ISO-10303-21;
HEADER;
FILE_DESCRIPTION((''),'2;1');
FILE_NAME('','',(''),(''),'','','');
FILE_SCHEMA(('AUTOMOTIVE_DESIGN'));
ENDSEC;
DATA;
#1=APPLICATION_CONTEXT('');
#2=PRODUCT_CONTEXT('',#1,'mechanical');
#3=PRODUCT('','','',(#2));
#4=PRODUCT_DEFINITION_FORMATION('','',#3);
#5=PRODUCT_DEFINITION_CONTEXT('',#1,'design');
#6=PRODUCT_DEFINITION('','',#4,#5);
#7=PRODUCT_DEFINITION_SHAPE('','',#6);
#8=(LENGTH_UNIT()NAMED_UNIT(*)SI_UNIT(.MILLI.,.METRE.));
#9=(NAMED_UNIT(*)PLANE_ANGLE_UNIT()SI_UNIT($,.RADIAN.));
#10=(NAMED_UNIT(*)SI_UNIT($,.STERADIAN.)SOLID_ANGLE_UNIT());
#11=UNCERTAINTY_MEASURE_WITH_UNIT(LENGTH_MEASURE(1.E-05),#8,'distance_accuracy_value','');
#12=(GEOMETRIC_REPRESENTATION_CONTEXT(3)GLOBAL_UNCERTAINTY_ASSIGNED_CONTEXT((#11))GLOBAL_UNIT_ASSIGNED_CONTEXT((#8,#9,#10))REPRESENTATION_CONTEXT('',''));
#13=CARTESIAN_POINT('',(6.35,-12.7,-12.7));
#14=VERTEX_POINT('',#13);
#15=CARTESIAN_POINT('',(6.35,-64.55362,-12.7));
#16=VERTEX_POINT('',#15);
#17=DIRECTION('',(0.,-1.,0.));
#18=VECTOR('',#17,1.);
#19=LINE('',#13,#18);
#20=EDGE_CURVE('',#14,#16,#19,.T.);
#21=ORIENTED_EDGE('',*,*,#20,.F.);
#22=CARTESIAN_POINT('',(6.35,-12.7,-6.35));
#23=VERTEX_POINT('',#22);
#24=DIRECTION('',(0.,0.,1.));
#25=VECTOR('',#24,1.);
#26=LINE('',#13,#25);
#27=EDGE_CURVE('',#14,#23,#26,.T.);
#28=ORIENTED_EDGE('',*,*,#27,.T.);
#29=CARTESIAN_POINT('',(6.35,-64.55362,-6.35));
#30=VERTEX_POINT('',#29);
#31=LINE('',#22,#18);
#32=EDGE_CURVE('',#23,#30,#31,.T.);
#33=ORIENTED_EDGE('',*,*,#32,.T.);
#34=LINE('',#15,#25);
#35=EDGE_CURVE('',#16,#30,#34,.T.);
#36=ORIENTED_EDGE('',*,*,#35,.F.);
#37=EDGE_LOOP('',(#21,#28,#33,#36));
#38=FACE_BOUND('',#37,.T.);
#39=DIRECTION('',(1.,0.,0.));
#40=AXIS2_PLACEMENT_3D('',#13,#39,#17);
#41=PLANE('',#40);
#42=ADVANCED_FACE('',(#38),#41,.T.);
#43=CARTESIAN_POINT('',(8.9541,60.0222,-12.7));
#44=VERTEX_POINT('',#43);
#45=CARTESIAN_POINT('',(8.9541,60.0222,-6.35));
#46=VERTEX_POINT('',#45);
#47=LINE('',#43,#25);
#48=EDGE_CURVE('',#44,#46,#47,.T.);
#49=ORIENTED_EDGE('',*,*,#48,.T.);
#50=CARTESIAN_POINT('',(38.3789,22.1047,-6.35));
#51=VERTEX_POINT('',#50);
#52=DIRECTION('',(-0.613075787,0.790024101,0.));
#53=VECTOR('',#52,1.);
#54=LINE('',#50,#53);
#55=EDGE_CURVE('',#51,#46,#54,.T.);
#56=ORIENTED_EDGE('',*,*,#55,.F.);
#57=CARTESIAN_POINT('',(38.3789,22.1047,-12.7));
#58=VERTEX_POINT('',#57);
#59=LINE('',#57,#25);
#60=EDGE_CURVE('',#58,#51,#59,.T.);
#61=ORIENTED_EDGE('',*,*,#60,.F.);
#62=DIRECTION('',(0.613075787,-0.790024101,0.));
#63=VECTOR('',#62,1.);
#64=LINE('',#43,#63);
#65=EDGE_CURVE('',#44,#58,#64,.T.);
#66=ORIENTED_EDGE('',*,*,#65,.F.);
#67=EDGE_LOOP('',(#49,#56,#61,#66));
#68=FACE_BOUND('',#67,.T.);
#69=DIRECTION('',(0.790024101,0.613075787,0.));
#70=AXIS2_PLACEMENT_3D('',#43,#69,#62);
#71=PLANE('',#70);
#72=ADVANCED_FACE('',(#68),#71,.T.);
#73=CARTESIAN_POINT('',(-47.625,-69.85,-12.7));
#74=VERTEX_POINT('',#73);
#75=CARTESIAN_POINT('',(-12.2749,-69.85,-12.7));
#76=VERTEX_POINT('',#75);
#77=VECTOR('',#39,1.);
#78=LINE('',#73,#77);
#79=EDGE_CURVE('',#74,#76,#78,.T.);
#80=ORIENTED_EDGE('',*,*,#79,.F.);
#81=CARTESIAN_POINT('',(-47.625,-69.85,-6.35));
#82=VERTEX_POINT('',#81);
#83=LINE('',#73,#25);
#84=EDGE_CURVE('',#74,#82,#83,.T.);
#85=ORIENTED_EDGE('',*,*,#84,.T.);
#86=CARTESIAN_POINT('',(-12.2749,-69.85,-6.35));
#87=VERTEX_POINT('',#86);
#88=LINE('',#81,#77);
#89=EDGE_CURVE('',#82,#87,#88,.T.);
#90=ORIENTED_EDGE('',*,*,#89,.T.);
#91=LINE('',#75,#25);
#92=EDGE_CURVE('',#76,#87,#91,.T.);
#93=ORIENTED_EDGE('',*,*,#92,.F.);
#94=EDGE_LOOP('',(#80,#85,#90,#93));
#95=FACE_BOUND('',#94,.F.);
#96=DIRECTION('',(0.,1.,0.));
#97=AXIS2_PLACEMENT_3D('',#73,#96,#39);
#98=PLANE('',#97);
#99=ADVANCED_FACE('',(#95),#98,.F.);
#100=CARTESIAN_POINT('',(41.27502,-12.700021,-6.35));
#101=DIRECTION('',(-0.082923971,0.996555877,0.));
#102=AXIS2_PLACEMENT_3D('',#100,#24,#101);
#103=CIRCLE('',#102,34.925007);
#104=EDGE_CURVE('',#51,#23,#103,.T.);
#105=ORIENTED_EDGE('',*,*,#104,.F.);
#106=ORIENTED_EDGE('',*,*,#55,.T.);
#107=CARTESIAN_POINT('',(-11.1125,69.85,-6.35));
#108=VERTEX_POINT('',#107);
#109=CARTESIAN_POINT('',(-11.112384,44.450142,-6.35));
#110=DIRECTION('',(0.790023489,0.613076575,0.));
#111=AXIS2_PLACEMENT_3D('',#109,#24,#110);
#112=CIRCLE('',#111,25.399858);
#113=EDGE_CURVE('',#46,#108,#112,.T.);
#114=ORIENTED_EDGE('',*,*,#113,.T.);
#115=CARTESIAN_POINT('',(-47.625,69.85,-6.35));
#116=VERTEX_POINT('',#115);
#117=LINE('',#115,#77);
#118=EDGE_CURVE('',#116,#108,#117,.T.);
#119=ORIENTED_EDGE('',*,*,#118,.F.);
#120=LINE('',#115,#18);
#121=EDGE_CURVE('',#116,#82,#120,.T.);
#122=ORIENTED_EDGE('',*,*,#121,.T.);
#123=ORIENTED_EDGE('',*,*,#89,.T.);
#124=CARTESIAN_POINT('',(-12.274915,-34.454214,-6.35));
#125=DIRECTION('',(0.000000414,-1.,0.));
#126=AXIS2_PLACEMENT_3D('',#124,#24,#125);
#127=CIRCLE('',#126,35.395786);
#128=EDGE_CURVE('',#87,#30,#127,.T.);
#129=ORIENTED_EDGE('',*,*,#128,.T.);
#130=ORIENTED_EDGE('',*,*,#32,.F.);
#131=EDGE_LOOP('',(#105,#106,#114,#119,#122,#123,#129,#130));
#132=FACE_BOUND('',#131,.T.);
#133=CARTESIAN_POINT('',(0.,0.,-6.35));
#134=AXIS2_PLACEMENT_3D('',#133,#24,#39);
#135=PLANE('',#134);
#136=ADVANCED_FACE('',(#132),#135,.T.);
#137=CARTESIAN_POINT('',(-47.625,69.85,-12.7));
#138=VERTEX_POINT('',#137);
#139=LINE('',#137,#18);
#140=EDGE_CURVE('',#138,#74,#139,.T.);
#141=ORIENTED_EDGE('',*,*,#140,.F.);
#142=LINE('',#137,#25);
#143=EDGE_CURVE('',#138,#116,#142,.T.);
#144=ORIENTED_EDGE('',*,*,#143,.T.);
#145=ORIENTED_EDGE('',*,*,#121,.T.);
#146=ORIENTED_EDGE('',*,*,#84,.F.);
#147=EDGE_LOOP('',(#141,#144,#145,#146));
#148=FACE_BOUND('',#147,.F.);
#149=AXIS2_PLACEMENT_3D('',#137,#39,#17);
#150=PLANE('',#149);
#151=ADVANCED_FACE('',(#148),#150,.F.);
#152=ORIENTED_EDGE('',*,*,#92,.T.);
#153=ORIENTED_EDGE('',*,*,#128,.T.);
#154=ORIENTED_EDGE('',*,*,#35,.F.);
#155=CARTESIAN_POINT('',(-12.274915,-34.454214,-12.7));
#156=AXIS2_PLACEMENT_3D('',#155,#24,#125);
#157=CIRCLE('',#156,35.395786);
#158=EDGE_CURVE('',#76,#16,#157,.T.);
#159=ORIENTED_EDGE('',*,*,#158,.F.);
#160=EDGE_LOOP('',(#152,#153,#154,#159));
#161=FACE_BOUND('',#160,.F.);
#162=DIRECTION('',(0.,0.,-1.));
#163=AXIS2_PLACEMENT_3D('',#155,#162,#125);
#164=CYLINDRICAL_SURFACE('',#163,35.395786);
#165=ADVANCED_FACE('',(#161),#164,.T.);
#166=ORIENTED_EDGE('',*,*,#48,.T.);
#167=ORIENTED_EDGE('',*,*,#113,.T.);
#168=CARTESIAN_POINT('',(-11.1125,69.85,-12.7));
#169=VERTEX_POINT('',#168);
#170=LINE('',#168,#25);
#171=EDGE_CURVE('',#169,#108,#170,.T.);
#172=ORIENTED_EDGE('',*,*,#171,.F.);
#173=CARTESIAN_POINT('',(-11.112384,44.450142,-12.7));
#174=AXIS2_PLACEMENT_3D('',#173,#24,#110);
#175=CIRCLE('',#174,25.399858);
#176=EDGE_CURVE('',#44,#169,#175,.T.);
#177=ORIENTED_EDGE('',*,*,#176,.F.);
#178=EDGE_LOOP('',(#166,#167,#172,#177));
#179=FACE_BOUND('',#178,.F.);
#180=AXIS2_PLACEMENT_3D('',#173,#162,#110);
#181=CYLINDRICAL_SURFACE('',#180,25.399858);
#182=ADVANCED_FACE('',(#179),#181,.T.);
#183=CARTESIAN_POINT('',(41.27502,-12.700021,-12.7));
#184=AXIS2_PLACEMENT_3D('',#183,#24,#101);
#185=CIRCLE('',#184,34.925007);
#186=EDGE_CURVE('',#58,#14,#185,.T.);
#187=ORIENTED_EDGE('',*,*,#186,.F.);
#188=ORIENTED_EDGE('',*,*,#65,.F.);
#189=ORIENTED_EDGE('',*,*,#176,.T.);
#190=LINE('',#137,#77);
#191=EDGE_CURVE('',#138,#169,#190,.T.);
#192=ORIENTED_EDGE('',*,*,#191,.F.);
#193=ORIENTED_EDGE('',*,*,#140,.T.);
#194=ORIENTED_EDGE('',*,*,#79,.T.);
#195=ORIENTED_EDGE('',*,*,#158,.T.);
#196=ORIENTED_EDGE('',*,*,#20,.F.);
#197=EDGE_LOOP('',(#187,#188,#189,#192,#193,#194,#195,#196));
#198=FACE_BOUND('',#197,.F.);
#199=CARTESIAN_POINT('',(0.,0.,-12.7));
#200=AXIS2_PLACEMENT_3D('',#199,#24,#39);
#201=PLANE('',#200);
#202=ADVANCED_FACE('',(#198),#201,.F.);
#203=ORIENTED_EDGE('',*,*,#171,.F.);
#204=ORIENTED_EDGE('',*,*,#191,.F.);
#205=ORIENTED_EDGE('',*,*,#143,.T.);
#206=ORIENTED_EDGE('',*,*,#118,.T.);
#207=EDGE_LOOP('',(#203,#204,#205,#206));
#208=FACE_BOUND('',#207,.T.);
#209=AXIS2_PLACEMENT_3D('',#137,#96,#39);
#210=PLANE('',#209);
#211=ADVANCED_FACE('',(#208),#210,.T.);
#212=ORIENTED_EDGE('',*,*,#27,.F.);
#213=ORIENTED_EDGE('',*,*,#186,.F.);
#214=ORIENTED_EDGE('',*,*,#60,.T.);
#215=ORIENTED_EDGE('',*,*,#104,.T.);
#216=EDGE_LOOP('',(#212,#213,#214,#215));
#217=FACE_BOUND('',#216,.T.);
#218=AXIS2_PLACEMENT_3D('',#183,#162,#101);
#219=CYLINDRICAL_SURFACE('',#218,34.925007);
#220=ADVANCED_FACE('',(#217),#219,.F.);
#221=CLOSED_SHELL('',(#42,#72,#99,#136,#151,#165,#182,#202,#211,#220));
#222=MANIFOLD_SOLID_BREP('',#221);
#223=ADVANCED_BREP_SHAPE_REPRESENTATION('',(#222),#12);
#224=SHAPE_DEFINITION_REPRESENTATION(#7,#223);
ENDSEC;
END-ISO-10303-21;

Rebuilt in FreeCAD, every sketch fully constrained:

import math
import FreeCAD as App
import Part
import Sketcher
Q = App.Units.Quantity

doc = App.newDocument("Part")
params = doc.addObject("Spreadsheet::Sheet", "Params")
for row, (alias, value) in enumerate([
    ("sketch1_radius", "1.375 in"),
    ("sketch1_radius2", "1 in"),
    ("sketch1_height", "5.5 in"),
    ("sketch1_width", "1.4375 in"),
    ("pad1_length", "0.25 in"),
], start=1):
    params.set(f"A{row}", alias)
    params.set(f"B{row}", "=" + value)
    params.setAlias(f"B{row}", alias)

body = doc.addObject("PartDesign::Body", "Body")

sketch1 = doc.addObject("Sketcher::SketchObject", "Sketch")
body.addObject(sketch1)
sketch1.AttachmentSupport = (doc.XY_Plane, [""])
sketch1.MapMode = "FlatFace"
sketch1.AttachmentOffset = App.Placement(App.Vector(0, 0, -0.5 * 25.4), App.Rotation())
sketch1.addGeometry([
    Part.LineSegment(App.Vector(-11, 70, 0), App.Vector(-48, 70, 0)),
    Part.LineSegment(App.Vector(-48, 70, 0), App.Vector(-48, -70, 0)),
    Part.LineSegment(App.Vector(-48, -70, 0), App.Vector(-12, -70, 0)),
    Part.ArcOfCircle(Part.Circle(App.Vector(-12, -34, 0), App.Vector(0, 0, 1), 35), math.radians(-90), math.radians(-58)),
    Part.LineSegment(App.Vector(6, -65, 0), App.Vector(6, -13, 0)),
    Part.ArcOfCircle(Part.Circle(App.Vector(41, -13, 0), App.Vector(0, 0, 1), 35), math.radians(95), math.radians(180)),
    Part.LineSegment(App.Vector(38, 22, 0), App.Vector(9, 60, 0)),
    Part.ArcOfCircle(Part.Circle(App.Vector(-11, 44, 0), App.Vector(0, 0, 1), 25), math.radians(38), math.radians(90)),
], False)
sketch1.addConstraint([
    Sketcher.Constraint("Coincident", 0, 2, 1, 1),
    Sketcher.Constraint("Coincident", 1, 2, 2, 1),
    Sketcher.Constraint("Tangent", 2, 2, 3, 1),
    Sketcher.Constraint("Coincident", 3, 2, 4, 1),
    Sketcher.Constraint("Tangent", 4, 2, 5, 2),
    Sketcher.Constraint("Coincident", 5, 1, 6, 1),
    Sketcher.Constraint("Tangent", 6, 2, 7, 1),
    Sketcher.Constraint("Tangent", 7, 2, 0, 1),
    Sketcher.Constraint("Horizontal", 0),
    Sketcher.Constraint("Vertical", 1),
    Sketcher.Constraint("Horizontal", 2),
    Sketcher.Constraint("Vertical", 4),
    Sketcher.Constraint("Radius", 5, Q("1.375 in")),
    Sketcher.Constraint("Radius", 7, Q("1 in")),
    Sketcher.Constraint("DistanceY", 5, 3, -1, 1, Q("0.5 in")),
    Sketcher.Constraint("DistanceY", 1, 2, 1, 1, Q("5.5 in")),
    Sketcher.Constraint("DistanceX", 0, 2, 5, 3, Q("3.5 in")),
    Sketcher.Constraint("DistanceX", 0, 2, 0, 1, Q("1.4375 in")),
    Sketcher.Constraint("DistanceY", -1, 1, 7, 3, Q("1.75 in")),
    Sketcher.Constraint("DistanceX", -1, 1, 3, 2, Q("0.25 in")),
    Sketcher.Constraint("Radius", 3, Q("35.3957 mm")),
    Sketcher.Constraint("DistanceX", 2, 1, 2, 2, Q("35.35 mm")),
    Sketcher.Constraint("Distance", 6, Q("47.9954 mm")),
])
sketch1.setExpression("Constraints[12]", "Params.sketch1_radius")
sketch1.setExpression("Constraints[13]", "Params.sketch1_radius2")
sketch1.setExpression("Constraints[15]", "Params.sketch1_height")
sketch1.setExpression("Constraints[17]", "Params.sketch1_width")
pad1 = doc.addObject("PartDesign::Pad", "Pad")
body.addObject(pad1)
pad1.Profile = sketch1
pad1.setExpression("Length", "Params.pad1_length")

doc.recompute()
